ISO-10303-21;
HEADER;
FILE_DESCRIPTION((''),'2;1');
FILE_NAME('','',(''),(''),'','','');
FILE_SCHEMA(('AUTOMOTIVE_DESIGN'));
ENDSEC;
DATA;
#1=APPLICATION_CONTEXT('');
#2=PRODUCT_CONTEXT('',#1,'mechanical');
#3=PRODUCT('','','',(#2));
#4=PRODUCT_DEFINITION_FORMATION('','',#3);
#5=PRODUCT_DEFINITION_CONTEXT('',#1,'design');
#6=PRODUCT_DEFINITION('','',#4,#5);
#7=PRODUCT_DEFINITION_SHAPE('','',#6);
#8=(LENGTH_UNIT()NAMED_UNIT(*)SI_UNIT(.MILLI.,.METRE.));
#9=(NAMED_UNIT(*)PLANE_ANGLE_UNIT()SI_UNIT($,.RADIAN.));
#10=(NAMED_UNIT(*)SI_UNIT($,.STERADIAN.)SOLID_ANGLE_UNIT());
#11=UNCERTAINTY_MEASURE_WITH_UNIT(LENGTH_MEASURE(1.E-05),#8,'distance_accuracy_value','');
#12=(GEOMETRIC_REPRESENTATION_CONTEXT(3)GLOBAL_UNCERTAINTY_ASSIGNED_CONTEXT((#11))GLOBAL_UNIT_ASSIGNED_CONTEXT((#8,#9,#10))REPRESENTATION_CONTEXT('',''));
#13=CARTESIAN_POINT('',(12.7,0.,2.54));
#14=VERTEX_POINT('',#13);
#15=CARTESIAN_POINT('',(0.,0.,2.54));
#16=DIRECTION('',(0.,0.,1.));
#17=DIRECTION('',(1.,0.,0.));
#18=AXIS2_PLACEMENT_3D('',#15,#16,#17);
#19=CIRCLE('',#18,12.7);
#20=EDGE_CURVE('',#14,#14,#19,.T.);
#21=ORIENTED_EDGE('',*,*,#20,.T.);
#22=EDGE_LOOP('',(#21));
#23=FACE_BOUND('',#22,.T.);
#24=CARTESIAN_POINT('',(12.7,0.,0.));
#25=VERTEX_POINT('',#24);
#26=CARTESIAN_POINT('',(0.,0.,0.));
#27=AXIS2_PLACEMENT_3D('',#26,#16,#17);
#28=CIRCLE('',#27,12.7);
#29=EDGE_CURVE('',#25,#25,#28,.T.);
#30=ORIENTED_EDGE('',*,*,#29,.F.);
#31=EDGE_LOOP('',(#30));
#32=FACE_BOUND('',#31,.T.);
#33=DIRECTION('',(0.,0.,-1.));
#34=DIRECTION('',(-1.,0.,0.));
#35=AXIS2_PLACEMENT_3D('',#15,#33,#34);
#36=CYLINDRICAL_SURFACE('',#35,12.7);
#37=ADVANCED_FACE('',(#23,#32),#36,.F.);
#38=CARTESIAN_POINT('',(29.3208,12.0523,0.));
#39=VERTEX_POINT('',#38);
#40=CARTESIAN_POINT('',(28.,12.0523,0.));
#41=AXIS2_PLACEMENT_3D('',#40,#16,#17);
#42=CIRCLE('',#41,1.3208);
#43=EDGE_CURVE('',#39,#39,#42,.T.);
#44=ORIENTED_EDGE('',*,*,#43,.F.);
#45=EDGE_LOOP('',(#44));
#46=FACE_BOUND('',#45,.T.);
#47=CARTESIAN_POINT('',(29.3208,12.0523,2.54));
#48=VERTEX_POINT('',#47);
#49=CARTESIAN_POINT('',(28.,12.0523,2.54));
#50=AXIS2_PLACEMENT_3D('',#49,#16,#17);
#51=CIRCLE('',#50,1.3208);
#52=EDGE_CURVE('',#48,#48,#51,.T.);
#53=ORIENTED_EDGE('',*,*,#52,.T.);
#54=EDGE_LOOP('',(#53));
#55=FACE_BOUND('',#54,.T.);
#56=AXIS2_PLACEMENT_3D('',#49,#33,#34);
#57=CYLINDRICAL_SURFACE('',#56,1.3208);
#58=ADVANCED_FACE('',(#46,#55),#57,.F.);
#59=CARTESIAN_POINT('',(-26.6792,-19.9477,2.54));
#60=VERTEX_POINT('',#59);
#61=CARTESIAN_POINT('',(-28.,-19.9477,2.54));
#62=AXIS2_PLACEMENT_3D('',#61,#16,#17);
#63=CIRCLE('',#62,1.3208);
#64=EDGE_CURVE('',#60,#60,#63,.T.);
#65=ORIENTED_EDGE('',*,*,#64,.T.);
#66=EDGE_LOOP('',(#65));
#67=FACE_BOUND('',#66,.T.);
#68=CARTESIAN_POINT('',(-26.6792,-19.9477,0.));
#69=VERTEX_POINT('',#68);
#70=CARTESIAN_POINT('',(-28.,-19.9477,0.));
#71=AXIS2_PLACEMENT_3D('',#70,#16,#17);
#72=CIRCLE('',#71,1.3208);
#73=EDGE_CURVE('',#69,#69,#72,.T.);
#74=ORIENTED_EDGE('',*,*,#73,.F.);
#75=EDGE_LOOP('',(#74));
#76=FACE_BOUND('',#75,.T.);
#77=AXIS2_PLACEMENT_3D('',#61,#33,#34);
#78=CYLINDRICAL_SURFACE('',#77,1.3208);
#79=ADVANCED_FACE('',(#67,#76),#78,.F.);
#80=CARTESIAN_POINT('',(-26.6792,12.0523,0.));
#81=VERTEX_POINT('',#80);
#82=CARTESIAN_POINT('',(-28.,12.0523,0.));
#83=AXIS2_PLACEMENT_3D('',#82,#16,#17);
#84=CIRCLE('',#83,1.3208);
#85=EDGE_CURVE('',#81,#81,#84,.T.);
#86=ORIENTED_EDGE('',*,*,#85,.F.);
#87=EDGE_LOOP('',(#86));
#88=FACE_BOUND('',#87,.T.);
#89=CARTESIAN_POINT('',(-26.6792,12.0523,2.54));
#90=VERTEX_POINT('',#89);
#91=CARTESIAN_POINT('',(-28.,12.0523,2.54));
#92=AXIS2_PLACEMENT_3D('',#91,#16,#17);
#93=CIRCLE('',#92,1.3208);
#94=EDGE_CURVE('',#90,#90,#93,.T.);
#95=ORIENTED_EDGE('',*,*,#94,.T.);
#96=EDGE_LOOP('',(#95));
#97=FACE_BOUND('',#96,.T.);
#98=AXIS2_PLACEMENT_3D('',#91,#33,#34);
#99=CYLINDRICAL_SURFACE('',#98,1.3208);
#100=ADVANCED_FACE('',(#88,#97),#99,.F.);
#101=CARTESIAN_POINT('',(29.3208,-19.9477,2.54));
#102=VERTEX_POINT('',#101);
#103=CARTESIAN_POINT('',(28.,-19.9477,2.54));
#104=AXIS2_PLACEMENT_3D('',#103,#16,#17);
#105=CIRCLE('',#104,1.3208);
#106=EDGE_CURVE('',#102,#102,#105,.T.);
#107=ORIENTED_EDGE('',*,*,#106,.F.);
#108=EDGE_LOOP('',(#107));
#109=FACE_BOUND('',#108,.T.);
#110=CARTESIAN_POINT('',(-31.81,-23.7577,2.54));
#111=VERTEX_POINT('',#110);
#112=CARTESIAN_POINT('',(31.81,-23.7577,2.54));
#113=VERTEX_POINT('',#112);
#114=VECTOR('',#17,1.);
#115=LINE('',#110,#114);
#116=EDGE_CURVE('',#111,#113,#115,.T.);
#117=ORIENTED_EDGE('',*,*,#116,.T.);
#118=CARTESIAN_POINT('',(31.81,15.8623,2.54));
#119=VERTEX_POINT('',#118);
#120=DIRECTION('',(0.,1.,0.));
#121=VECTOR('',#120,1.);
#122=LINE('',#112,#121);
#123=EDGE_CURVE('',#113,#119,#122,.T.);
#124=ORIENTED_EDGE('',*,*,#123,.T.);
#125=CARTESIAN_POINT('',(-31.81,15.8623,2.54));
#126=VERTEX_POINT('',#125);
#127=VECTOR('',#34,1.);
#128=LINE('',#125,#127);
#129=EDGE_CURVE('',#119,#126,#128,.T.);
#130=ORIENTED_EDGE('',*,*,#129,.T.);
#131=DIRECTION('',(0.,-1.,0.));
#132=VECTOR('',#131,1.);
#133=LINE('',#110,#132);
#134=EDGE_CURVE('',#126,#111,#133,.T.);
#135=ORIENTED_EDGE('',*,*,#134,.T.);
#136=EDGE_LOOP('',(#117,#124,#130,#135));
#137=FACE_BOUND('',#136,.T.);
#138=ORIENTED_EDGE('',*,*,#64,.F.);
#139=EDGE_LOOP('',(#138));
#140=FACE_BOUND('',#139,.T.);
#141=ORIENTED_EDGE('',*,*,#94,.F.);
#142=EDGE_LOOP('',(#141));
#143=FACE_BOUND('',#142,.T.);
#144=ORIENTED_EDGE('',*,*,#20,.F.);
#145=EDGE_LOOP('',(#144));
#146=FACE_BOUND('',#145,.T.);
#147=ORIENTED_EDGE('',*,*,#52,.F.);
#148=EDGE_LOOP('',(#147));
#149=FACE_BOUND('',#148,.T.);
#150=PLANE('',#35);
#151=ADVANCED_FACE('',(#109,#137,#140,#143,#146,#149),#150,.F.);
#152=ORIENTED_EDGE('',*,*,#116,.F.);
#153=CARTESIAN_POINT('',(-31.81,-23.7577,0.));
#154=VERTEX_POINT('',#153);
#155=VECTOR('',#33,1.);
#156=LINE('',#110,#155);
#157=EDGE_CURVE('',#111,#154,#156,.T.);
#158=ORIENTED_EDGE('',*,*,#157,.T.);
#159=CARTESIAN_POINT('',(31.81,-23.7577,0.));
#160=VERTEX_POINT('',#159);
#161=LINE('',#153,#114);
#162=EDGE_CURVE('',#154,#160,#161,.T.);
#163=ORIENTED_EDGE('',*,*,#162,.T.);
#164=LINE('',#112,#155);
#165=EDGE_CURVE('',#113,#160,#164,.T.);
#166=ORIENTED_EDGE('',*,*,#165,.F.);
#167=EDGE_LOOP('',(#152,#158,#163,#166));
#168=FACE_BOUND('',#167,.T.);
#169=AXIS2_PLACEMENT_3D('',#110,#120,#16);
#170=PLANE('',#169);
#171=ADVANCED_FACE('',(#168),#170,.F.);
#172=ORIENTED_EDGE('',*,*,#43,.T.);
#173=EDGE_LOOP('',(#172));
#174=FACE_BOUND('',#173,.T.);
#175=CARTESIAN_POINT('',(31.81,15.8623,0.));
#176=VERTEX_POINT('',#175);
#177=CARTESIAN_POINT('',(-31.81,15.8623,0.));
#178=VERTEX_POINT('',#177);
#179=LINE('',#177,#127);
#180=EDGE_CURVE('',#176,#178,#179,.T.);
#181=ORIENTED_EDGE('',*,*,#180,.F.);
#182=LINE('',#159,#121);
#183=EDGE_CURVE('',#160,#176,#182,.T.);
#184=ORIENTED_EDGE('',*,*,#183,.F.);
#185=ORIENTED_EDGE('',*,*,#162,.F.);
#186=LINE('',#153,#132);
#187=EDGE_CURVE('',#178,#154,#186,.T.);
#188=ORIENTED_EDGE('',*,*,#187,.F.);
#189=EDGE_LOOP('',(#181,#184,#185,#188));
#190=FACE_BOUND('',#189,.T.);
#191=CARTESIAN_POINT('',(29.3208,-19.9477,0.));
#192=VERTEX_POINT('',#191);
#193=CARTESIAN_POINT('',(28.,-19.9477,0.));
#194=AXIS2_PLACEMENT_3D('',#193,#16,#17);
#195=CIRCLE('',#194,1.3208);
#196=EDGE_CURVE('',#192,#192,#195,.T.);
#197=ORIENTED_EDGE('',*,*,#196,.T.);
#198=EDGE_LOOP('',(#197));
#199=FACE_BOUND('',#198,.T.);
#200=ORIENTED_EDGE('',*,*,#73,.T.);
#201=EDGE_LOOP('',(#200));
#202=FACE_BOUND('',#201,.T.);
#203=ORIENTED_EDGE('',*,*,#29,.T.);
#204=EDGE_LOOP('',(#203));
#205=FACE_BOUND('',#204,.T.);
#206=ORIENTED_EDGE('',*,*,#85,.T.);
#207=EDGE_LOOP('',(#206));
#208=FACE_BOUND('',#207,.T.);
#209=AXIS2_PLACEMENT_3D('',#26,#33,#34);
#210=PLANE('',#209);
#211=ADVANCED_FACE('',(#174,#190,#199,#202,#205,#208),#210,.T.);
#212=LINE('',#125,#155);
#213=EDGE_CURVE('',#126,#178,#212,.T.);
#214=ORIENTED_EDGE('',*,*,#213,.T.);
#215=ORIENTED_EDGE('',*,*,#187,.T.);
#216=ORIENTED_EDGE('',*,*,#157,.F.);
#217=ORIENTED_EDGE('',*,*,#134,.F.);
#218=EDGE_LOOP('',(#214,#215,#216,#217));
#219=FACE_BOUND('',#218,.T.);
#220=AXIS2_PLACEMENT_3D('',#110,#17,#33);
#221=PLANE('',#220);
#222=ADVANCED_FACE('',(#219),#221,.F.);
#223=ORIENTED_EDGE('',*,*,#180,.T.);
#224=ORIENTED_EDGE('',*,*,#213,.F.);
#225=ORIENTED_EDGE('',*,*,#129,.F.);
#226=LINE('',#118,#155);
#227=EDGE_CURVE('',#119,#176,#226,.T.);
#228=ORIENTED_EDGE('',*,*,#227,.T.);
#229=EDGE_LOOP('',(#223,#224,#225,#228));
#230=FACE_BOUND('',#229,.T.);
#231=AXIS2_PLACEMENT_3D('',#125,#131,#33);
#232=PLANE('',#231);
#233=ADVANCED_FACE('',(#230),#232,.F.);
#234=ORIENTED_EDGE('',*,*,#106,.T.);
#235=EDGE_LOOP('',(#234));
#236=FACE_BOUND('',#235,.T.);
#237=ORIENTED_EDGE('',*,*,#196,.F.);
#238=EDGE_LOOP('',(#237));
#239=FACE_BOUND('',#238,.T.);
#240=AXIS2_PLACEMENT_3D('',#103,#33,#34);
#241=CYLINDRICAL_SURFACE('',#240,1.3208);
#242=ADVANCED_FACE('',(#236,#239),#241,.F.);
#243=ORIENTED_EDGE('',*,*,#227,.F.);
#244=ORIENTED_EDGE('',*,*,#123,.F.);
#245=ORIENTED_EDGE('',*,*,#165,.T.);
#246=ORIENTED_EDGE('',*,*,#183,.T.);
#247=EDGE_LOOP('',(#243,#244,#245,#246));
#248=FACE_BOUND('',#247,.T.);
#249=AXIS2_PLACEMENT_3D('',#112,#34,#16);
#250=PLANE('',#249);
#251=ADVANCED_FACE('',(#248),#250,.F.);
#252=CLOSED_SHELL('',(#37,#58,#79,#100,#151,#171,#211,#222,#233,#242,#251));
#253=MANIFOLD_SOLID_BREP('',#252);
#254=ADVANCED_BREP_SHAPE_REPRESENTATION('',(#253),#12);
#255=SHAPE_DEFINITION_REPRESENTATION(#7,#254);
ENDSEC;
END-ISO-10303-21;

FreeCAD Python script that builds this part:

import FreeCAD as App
import Part
import Sketcher
Q = App.Units.Quantity


def add_polygon(sketch, points):
    """Adds a closed chain of lines whose ends are joined by coincident constraints."""
    first, n = sketch.GeometryCount, len(points)
    for a, b in zip(points, points[1:] + points[:1]):
        sketch.addGeometry(Part.LineSegment(App.Vector(*a, 0), App.Vector(*b, 0)), False)
    for i in range(n):
        sketch.addConstraint(Sketcher.Constraint("Coincident", first + i, 2, first + (i + 1) % n, 1))

doc = App.newDocument("Part")
body = doc.addObject("PartDesign::Body", "Body")

# Sketch on XY plane
sketch1 = doc.addObject("Sketcher::SketchObject", "Sketch")
body.addObject(sketch1)
sketch1.AttachmentSupport = (doc.XY_Plane, [""])
sketch1.MapMode = "FlatFace"
add_polygon(sketch1, [(-31.8, 15.9), (-31.8, -23.8), (31.8, -23.8), (31.8, 15.9)])  # lines 0-3
sketch1.addGeometry(Part.Circle(App.Vector(-28, -19.9, 0), App.Vector(0, 0, 1), 1.3), False)  # 4
sketch1.addGeometry(Part.Circle(App.Vector(28, -19.9, 0), App.Vector(0, 0, 1), 1.3), False)  # 5
sketch1.addGeometry(Part.Circle(App.Vector(-28, 12.1, 0), App.Vector(0, 0, 1), 1.3), False)  # 6
sketch1.addGeometry(Part.Circle(App.Vector(0, 0, 0), App.Vector(0, 0, 1), 12.7), False)  # 7
sketch1.addGeometry(Part.Circle(App.Vector(28, 12.1, 0), App.Vector(0, 0, 1), 1.3), False)  # 8
sketch1.addConstraint([
    Sketcher.Constraint("Vertical", 0),
    Sketcher.Constraint("Horizontal", 1),
    Sketcher.Constraint("Vertical", 2),
    Sketcher.Constraint("Horizontal", 3),
    Sketcher.Constraint("Coincident", 7, 3, -1, 1),
    Sketcher.Constraint("Equal", 4, 5),
    Sketcher.Constraint("Equal", 5, 6),
    Sketcher.Constraint("Equal", 6, 8),
    Sketcher.Constraint("Symmetric", 4, 3, 5, 3, -2),
    Sketcher.Constraint("Symmetric", 6, 3, 8, 3, -2),
    Sketcher.Constraint("Vertical", 4, 3, 6, 3),
    Sketcher.Constraint("Diameter", 7, Q("1 in")),
    Sketcher.Constraint("Diameter", 4, Q("0.104 in")),
    Sketcher.Constraint("DistanceX", 0, 2, 4, 3, Q("0.15 in")),
    Sketcher.Constraint("DistanceY", 0, 2, 4, 3, Q("0.15 in")),
    Sketcher.Constraint("DistanceX", 5, 3, 1, 2, Q("0.15 in")),
    Sketcher.Constraint("DistanceY", 8, 3, 2, 2, Q("0.15 in")),
    Sketcher.Constraint("DistanceX", 1, 1, 1, 2, 63.62),
    Sketcher.Constraint("DistanceY", 0, 2, 0, 1, 39.62),
    Sketcher.Constraint("DistanceY", -1, 1, 6, 3, Q("0.4745 in")),
])
pad1 = doc.addObject("PartDesign::Pad", "Pad")
body.addObject(pad1)
pad1.Profile = sketch1
pad1.Length = Q("0.1 in")

doc.recompute()
